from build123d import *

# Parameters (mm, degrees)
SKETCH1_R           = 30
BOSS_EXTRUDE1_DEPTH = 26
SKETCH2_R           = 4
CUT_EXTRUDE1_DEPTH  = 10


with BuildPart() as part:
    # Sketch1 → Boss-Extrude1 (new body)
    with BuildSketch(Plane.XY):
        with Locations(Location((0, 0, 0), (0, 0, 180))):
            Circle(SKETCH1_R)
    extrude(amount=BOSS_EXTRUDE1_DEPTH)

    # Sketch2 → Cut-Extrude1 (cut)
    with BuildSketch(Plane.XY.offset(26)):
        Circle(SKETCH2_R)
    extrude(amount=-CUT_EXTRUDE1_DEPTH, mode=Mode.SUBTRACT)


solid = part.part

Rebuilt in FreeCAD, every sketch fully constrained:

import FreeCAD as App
import Part
import Sketcher
from FreeCAD import Vector
Q = App.Units.Quantity

doc = App.newDocument("Part")
params = doc.addObject("Spreadsheet::Sheet", "Params")
for row, (alias, value) in enumerate([
    ("sketch1_diameter", "60 mm"),
    ("pad1_length", "26 mm"),
    ("sketch2_diameter", "8 mm"),
    ("pocket1_length", "10 mm"),
], start=1):
    params.set(f"A{row}", alias)
    params.set(f"B{row}", "=" + value)
    params.setAlias(f"B{row}", alias)

body = doc.addObject("PartDesign::Body", "Body")

sketch1 = body.newObject("Sketcher::SketchObject", "Sketch")
sketch1.AttachmentSupport = (doc.getObject("XY_Plane"), [""])
sketch1.MapMode = "FlatFace"
sketch1.addGeometry(Part.Circle(Vector(0, 0, 0), Vector(0, 0, 1), 30), False)
sketch1.addConstraint([
    Sketcher.Constraint("Coincident", 0, 3, -1, 1),
    Sketcher.Constraint("Diameter", 0, Q("60 mm")),
])
sketch1.setExpression("Constraints[1]", "Params.sketch1_diameter")
pad1 = body.newObject("PartDesign::Pad", "Pad")
pad1.Profile = sketch1
pad1.setExpression("Length", "Params.pad1_length")

sketch2 = body.newObject("Sketcher::SketchObject", "Sketch001")
sketch2.AttachmentSupport = (doc.getObject("XY_Plane"), [""])
sketch2.MapMode = "FlatFace"
sketch2.AttachmentOffset = App.Placement(Vector(0, 0, 26), App.Rotation())
sketch2.addGeometry(Part.Circle(Vector(0, 0, 0), Vector(0, 0, 1), 4), False)
sketch2.addConstraint([
    Sketcher.Constraint("Coincident", 0, 3, -1, 1),
    Sketcher.Constraint("Diameter", 0, Q("8 mm")),
])
sketch2.setExpression("Constraints[1]", "Params.sketch2_diameter")
pocket1 = body.newObject("PartDesign::Pocket", "Pocket")
pocket1.Profile = sketch2
pocket1.setExpression("Length", "Params.pocket1_length")

doc.recompute()
